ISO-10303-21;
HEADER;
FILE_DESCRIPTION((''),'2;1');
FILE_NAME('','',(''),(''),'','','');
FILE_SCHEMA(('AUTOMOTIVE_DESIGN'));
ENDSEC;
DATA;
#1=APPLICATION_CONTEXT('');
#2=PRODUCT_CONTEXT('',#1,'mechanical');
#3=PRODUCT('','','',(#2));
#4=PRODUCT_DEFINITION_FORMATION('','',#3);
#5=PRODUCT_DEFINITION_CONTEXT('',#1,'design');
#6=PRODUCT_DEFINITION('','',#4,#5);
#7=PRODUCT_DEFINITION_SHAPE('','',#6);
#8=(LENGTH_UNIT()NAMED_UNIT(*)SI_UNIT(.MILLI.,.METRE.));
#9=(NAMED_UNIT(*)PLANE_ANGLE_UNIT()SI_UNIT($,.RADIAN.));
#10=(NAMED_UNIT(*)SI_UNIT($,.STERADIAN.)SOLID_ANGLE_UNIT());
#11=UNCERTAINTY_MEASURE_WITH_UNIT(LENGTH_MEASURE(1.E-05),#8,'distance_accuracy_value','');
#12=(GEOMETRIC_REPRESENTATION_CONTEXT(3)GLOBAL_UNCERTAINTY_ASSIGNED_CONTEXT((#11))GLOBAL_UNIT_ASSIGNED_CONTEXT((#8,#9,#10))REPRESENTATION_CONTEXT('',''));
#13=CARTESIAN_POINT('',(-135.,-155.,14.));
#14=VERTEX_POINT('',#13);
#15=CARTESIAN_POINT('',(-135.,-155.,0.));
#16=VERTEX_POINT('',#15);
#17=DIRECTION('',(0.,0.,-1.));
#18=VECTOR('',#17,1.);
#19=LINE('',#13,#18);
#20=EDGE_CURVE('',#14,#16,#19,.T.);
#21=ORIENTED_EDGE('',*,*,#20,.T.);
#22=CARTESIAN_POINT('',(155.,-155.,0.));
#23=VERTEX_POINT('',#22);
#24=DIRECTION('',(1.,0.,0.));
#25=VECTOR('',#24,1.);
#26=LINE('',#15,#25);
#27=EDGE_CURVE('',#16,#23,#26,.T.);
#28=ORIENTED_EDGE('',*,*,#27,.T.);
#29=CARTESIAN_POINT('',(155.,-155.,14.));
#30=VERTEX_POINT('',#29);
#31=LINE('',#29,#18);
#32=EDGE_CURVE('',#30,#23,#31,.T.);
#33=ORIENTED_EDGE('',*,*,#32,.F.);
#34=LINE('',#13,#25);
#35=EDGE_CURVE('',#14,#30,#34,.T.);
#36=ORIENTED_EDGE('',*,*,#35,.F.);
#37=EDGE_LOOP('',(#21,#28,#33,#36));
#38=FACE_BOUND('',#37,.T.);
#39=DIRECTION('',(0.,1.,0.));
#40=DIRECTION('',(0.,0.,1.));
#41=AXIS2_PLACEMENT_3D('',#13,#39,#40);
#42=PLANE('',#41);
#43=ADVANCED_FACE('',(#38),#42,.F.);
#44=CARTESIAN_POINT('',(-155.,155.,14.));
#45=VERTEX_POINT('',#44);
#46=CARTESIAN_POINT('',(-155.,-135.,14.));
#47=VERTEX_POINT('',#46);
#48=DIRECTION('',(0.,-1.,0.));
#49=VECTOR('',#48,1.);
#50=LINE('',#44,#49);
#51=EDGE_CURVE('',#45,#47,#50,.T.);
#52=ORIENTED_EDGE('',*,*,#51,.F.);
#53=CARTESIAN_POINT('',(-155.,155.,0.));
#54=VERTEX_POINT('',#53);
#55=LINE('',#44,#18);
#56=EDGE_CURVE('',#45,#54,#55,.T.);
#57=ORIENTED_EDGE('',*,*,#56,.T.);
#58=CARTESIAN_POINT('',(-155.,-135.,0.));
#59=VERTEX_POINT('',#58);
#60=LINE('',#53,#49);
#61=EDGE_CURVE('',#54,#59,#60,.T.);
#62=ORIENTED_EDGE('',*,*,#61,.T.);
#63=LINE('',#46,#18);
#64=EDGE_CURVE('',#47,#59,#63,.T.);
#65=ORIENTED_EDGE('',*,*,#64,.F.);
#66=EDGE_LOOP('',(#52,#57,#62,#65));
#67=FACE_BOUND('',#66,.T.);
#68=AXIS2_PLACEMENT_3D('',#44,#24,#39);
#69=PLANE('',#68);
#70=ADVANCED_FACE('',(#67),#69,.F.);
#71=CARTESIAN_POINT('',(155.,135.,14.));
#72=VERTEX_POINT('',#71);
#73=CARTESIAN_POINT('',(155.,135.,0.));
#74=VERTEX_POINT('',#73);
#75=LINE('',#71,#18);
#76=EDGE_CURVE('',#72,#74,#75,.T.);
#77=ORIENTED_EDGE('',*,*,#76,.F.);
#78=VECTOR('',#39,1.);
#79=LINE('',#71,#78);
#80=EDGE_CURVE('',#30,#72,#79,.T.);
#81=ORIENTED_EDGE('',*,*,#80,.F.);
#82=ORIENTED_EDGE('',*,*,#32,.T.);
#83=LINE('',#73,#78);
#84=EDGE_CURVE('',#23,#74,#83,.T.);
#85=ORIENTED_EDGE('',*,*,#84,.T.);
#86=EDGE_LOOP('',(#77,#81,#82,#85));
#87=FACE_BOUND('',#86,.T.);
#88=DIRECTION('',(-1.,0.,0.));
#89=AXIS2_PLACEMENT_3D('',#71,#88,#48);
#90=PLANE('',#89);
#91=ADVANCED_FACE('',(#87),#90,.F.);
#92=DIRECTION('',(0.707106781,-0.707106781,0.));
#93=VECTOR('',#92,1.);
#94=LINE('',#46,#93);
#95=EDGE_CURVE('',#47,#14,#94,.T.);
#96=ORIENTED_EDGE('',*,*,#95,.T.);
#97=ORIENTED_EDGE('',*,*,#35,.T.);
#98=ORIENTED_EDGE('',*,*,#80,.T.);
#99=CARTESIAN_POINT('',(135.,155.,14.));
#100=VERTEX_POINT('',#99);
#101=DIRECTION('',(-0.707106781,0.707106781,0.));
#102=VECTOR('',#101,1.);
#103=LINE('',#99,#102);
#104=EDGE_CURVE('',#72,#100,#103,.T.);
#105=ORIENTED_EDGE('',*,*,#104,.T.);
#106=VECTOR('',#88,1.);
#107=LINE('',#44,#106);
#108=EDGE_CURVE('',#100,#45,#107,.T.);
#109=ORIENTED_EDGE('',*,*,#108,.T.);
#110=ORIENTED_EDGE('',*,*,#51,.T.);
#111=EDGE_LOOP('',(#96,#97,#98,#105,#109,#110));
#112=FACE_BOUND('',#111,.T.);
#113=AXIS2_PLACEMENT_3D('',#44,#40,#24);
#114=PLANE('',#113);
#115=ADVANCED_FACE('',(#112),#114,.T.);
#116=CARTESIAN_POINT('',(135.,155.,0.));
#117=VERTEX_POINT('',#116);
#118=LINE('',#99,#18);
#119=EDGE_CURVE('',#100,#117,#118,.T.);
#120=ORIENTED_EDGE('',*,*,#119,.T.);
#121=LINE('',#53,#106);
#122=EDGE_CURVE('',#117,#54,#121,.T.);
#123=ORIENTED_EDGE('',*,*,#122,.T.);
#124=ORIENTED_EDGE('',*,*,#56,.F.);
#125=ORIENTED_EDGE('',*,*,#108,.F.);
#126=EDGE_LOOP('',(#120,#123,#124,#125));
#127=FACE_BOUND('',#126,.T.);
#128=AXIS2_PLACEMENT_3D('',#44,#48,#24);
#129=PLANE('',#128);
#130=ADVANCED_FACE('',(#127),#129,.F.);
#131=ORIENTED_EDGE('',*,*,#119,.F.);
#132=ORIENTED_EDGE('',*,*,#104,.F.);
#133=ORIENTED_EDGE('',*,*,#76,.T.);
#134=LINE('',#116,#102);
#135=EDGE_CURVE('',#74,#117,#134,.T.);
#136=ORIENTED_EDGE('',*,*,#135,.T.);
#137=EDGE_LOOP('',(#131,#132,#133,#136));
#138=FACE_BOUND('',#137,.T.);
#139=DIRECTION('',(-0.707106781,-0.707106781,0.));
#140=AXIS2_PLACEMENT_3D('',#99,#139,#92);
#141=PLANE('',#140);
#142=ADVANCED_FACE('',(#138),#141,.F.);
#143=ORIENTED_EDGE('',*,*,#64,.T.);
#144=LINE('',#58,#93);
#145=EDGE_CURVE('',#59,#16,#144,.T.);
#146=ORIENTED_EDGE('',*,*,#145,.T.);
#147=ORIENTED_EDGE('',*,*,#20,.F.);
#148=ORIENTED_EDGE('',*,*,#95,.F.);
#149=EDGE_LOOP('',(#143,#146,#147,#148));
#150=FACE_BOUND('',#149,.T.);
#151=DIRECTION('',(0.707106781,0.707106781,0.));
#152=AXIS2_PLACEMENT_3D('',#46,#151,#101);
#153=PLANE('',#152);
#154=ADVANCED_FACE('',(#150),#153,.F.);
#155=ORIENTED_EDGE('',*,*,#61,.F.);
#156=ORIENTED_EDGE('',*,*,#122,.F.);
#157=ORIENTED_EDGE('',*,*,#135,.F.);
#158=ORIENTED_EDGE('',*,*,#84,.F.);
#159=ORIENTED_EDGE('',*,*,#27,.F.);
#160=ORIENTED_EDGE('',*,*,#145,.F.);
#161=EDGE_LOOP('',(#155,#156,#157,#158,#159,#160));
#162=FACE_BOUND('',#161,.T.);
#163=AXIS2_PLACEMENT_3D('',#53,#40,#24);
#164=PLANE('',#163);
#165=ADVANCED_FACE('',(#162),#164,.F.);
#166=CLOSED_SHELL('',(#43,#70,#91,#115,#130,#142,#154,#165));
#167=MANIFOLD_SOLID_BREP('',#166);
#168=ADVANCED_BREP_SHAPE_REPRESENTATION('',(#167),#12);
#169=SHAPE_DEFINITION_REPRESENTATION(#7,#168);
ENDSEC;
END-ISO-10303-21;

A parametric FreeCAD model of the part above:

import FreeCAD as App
import Part
import Sketcher

V = App.Vector
Q = App.Units.Quantity

doc = App.newDocument("Part")
body = doc.addObject("PartDesign::Body", "Body")

# Sketch on XY plane
sketch1 = doc.addObject("Sketcher::SketchObject", "Sketch")
body.addObject(sketch1)
sketch1.AttachmentSupport = (doc.XY_Plane, [""])
sketch1.MapMode = "FlatFace"
sketch1.addGeometry(Part.LineSegment(V(155, 135, 0), V(135, 155, 0)), False)
sketch1.addGeometry(Part.LineSegment(V(135, 155, 0), V(-155, 155, 0)), False)
sketch1.addGeometry(Part.LineSegment(V(-155, 155, 0), V(-155, -135, 0)), False)
sketch1.addGeometry(Part.LineSegment(V(-155, -135, 0), V(-135, -155, 0)), False)
sketch1.addGeometry(Part.LineSegment(V(-135, -155, 0), V(155, -155, 0)), False)
sketch1.addGeometry(Part.LineSegment(V(155, -155, 0), V(155, 135, 0)), False)
sketch1.addConstraint(Sketcher.Constraint("Coincident", 0, 2, 1, 1))
sketch1.addConstraint(Sketcher.Constraint("Coincident", 1, 2, 2, 1))
sketch1.addConstraint(Sketcher.Constraint("Coincident", 2, 2, 3, 1))
sketch1.addConstraint(Sketcher.Constraint("Coincident", 3, 2, 4, 1))
sketch1.addConstraint(Sketcher.Constraint("Coincident", 4, 2, 5, 1))
sketch1.addConstraint(Sketcher.Constraint("Coincident", 5, 2, 0, 1))
sketch1.addConstraint(Sketcher.Constraint("Horizontal", 1))
sketch1.addConstraint(Sketcher.Constraint("Vertical", 2))
sketch1.addConstraint(Sketcher.Constraint("Horizontal", 4))
sketch1.addConstraint(Sketcher.Constraint("Vertical", 5))
sketch1.addConstraint(Sketcher.Constraint("Symmetric", 0, 2, 3, 2, -1, 1))
sketch1.addConstraint(Sketcher.Constraint("Symmetric", 2, 2, 5, 2, -1, 1))
sketch1.addConstraint(Sketcher.Constraint("Equal", 4, 2))
sketch1.addConstraint(Sketcher.Constraint("DistanceX", 1, 2, 1, 1, Q("290 mm")))
sketch1.addConstraint(Sketcher.Constraint("Angle", 0, Q("135 deg")))
sketch1.addConstraint(Sketcher.Constraint("DistanceX", -1, 1, 0, 2, Q("135 mm")))
pad1 = doc.addObject("PartDesign::Pad", "Pad")
body.addObject(pad1)
pad1.Profile = sketch1
pad1.Length = 14

doc.recompute()
